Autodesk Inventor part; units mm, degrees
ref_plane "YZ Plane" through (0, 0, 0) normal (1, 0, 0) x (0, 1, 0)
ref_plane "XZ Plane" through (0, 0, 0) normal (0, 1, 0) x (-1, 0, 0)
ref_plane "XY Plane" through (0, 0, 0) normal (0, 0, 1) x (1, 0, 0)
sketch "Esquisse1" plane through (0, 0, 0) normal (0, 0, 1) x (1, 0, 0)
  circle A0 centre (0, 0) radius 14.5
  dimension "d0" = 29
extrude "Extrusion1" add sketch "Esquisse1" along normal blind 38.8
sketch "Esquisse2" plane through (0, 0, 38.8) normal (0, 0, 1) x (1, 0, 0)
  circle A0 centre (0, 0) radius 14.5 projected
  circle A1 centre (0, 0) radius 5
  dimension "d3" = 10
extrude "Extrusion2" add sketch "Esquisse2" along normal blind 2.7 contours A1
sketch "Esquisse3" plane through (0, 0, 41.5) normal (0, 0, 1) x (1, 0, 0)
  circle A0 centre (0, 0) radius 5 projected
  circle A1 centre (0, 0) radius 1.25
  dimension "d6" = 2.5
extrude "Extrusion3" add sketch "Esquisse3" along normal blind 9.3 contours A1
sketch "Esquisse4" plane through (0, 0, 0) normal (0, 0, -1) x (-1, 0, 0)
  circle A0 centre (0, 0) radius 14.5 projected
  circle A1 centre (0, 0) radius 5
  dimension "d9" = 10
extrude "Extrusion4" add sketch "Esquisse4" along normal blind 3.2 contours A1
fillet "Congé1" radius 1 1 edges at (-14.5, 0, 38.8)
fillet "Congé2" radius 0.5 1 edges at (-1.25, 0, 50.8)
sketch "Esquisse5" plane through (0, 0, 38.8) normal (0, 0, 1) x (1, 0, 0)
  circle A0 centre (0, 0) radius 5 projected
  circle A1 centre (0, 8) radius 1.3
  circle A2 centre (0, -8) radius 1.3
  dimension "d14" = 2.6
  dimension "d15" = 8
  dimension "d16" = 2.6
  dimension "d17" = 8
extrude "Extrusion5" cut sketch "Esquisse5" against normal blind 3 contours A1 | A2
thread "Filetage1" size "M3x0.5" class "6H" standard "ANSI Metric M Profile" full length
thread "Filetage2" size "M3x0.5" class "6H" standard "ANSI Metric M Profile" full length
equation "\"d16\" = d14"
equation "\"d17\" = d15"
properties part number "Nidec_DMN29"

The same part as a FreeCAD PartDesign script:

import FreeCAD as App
import Part
import Sketcher
Q = App.Units.Quantity


def edges_at(feature, points):
    """Names of the edges that pass closest to the given points."""
    edges = feature.Shape.Edges
    near = lambda p: min(range(len(edges)), key=lambda i: edges[i].distToShape(Part.Vertex(*p))[0])
    return sorted({f"Edge{near(p) + 1}" for p in points})

doc = App.newDocument("Part")
params = doc.addObject("Spreadsheet::Sheet", "Params")
for row, (alias, value) in enumerate([
    ("sketch1_diameter", "29 mm"),
    ("pad1_length", "38.8 mm"),
    ("sketch2_diameter", "10 mm"),
    ("pad2_length", "2.7 mm"),
    ("sketch3_diameter", "2.5 mm"),
    ("pad3_length", "9.3 mm"),
    ("sketch4_diameter", "10 mm"),
    ("pad4_length", "3.2 mm"),
    ("fillet_radius", "1 mm"),
    ("fillet2_radius", "0.5 mm"),
    ("sketch5_diameter", "2.6 mm"),
    ("pocket1_length", "3 mm"),
], start=1):
    params.set(f"A{row}", alias)
    params.set(f"B{row}", "=" + value)
    params.setAlias(f"B{row}", alias)

body = doc.addObject("PartDesign::Body", "Body")

# Sketch on XY plane
sketch1 = body.newObject("Sketcher::SketchObject", "Sketch")
sketch1.AttachmentSupport = (doc.getObject("XY_Plane"), [""])
sketch1.MapMode = "FlatFace"
sketch1.addGeometry(Part.Circle(App.Vector(0, 0, 0), App.Vector(0, 0, 1), 14), False)
sketch1.addConstraint(Sketcher.Constraint("Coincident", 0, 3, -1, 1))
sketch1.addConstraint(Sketcher.Constraint("Diameter", 0, Q("29 mm")))
sketch1.setExpression("Constraints[1]", "Params.sketch1_diameter")
pad1 = body.newObject("PartDesign::Pad", "Pad")
pad1.Profile = sketch1
pad1.setExpression("Length", "Params.pad1_length")

# Sketch on XY plane
sketch2 = body.newObject("Sketcher::SketchObject", "Sketch001")
sketch2.AttachmentSupport = (doc.getObject("XY_Plane"), [""])
sketch2.MapMode = "FlatFace"
sketch2.AttachmentOffset = App.Placement(App.Vector(0, 0, 38.8), App.Rotation())
sketch2.addGeometry(Part.Circle(App.Vector(0, 0, 0), App.Vector(0, 0, 1), 5), False)
sketch2.addConstraint(Sketcher.Constraint("Coincident", 0, 3, -1, 1))
sketch2.addConstraint(Sketcher.Constraint("Diameter", 0, Q("10 mm")))
sketch2.setExpression("Constraints[1]", "Params.sketch2_diameter")
pad2 = body.newObject("PartDesign::Pad", "Pad001")
pad2.Profile = sketch2
pad2.setExpression("Length", "Params.pad2_length")

# Sketch on XY plane
sketch3 = body.newObject("Sketcher::SketchObject", "Sketch002")
sketch3.AttachmentSupport = (doc.getObject("XY_Plane"), [""])
sketch3.MapMode = "FlatFace"
sketch3.AttachmentOffset = App.Placement(App.Vector(0, 0, 41.5), App.Rotation())
sketch3.addGeometry(Part.Circle(App.Vector(0, 0, 0), App.Vector(0, 0, 1), 1.2), False)
sketch3.addConstraint(Sketcher.Constraint("Coincident", 0, 3, -1, 1))
sketch3.addConstraint(Sketcher.Constraint("Diameter", 0, Q("2.5 mm")))
sketch3.setExpression("Constraints[1]", "Params.sketch3_diameter")
pad3 = body.newObject("PartDesign::Pad", "Pad002")
pad3.Profile = sketch3
pad3.setExpression("Length", "Params.pad3_length")

# Sketch on XY plane
sketch4 = body.newObject("Sketcher::SketchObject", "Sketch003")
sketch4.AttachmentSupport = (doc.getObject("XY_Plane"), [""])
sketch4.MapMode = "FlatFace"
sketch4.addGeometry(Part.Circle(App.Vector(0, 0, 0), App.Vector(0, 0, 1), 5), False)
sketch4.addConstraint(Sketcher.Constraint("Coincident", 0, 3, -1, 1))
sketch4.addConstraint(Sketcher.Constraint("Diameter", 0, Q("10 mm")))
sketch4.setExpression("Constraints[1]", "Params.sketch4_diameter")
pad4 = body.newObject("PartDesign::Pad", "Pad003")
pad4.Profile = sketch4
pad4.setExpression("Length", "Params.pad4_length")
pad4.Reversed = True
doc.recompute()

fillet = body.newObject("PartDesign::Fillet", "Fillet")
fillet.Base = (pad4, edges_at(pad4, [(-14.5, 0, 38.8)]))
fillet.setExpression("Radius", "Params.fillet_radius")
doc.recompute()

fillet2 = body.newObject("PartDesign::Fillet", "Fillet001")
fillet2.Base = (fillet, edges_at(fillet, [(-1.25, 0, 50.8)]))
fillet2.setExpression("Radius", "Params.fillet2_radius")

# Sketch on XY plane
sketch5 = body.newObject("Sketcher::SketchObject", "Sketch004")
sketch5.AttachmentSupport = (doc.getObject("XY_Plane"), [""])
sketch5.MapMode = "FlatFace"
sketch5.AttachmentOffset = App.Placement(App.Vector(0, 0, 38.8), App.Rotation())
sketch5.addGeometry(Part.Circle(App.Vector(0, 8, 0), App.Vector(0, 0, 1), 1.3), False)
sketch5.addGeometry(Part.Circle(App.Vector(0, -8, 0), App.Vector(0, 0, 1), 1.3), False)
sketch5.addConstraint(Sketcher.Constraint("Equal", 0, 1))
sketch5.addConstraint(Sketcher.Constraint("Symmetric", 0, 3, 1, 3, -1, 1))
sketch5.addConstraint(Sketcher.Constraint("PointOnObject", 0, 3, -2))
sketch5.addConstraint(Sketcher.Constraint("Diameter", 0, Q("2.6 mm")))
sketch5.addConstraint(Sketcher.Constraint("DistanceY", -1, 1, 0, 3, Q("8 mm")))
sketch5.setExpression("Constraints[3]", "Params.sketch5_diameter")
pocket1 = body.newObject("PartDesign::Pocket", "Pocket")
pocket1.Profile = sketch5
pocket1.setExpression("Length", "Params.pocket1_length")

doc.recompute()
